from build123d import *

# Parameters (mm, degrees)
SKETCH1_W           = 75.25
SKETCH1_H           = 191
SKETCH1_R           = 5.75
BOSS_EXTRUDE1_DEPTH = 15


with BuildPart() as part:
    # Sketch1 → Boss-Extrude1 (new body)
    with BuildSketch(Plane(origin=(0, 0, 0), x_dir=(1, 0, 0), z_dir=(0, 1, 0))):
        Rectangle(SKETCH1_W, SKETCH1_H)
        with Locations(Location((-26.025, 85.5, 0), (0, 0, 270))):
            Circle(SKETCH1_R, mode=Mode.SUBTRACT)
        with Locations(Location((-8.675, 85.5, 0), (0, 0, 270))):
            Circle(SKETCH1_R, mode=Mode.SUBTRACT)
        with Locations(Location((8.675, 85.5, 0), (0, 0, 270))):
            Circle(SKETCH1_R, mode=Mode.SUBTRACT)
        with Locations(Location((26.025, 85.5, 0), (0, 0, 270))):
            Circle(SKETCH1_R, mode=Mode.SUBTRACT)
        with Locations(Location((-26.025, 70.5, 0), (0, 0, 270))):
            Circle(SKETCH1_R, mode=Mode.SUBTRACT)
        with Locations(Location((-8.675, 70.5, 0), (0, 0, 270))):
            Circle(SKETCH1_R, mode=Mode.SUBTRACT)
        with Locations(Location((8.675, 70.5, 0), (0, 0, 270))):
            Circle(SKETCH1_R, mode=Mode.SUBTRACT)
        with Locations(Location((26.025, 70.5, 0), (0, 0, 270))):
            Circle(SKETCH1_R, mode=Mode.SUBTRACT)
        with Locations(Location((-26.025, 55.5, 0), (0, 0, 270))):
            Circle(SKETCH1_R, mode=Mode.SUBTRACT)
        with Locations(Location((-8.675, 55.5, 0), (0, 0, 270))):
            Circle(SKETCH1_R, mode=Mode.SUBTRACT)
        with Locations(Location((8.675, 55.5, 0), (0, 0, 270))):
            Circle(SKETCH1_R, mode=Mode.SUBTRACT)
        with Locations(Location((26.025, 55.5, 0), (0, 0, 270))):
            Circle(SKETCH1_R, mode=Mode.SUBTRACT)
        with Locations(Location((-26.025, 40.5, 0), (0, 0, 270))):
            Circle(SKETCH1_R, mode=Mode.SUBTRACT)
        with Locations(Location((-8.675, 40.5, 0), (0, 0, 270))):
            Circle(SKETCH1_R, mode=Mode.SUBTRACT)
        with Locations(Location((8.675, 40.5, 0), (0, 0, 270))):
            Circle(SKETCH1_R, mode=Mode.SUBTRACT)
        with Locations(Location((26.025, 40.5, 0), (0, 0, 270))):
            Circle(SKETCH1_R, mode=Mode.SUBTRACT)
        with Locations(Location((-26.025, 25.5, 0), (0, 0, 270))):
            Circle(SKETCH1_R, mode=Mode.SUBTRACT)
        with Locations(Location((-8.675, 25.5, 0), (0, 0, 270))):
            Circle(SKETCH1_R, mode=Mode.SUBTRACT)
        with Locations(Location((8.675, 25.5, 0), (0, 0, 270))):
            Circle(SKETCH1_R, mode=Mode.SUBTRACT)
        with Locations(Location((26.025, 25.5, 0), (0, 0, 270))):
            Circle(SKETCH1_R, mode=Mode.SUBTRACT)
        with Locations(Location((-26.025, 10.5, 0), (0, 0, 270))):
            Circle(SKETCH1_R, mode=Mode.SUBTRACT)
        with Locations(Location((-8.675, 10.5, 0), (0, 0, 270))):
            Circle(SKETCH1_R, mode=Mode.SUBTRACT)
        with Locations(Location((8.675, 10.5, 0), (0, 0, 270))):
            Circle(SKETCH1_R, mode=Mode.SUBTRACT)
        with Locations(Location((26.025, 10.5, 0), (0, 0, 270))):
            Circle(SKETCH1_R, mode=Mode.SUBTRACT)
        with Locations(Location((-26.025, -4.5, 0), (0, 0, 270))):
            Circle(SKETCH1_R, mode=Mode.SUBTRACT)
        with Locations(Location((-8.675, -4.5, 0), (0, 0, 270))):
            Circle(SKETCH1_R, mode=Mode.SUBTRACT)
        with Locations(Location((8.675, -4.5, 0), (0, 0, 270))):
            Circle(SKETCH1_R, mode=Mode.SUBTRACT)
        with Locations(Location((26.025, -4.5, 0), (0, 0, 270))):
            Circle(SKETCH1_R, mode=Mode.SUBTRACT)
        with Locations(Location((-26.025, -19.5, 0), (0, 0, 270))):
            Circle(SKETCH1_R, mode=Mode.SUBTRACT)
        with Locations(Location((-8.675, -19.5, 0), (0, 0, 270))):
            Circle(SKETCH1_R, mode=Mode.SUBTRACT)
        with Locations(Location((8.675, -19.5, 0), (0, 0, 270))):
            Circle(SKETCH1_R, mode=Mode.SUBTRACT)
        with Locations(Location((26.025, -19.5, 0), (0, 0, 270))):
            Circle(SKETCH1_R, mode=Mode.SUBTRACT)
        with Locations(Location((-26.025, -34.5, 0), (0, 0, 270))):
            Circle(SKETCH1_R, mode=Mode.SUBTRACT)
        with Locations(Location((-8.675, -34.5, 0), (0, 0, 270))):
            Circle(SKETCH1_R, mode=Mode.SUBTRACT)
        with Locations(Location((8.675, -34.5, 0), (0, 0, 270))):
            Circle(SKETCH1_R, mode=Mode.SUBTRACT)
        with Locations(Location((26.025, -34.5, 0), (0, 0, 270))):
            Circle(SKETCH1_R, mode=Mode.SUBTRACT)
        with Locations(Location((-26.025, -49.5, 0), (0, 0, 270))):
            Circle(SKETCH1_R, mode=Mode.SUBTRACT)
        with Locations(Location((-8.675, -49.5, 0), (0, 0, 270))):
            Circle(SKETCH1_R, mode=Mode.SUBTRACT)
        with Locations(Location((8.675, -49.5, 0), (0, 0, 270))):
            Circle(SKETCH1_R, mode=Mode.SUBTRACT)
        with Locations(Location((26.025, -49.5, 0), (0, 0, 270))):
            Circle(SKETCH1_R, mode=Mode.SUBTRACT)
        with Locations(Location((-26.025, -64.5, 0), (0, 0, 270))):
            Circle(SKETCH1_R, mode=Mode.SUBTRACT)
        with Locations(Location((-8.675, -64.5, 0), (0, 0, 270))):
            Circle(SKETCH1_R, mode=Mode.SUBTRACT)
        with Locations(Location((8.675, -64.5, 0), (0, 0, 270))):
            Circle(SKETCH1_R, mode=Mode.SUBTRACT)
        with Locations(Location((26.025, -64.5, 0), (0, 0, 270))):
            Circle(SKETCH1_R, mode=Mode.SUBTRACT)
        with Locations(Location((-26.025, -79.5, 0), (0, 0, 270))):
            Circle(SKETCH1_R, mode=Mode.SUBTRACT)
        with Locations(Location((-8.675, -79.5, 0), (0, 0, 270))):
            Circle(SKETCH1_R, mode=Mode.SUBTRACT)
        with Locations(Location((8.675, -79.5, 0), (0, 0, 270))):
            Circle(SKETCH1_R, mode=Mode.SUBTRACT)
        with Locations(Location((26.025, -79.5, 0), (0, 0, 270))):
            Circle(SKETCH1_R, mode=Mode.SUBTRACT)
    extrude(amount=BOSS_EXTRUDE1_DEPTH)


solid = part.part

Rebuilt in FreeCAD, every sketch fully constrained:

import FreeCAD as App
import Part
import Sketcher

V = App.Vector


def add_polygon(sketch, points):
    """Adds a closed chain of lines whose ends are joined by coincident constraints."""
    first, n = sketch.GeometryCount, len(points)
    for a, b in zip(points, points[1:] + points[:1]):
        sketch.addGeometry(Part.LineSegment(App.Vector(*a, 0), App.Vector(*b, 0)), False)
    for i in range(n):
        sketch.addConstraint(Sketcher.Constraint("Coincident", first + i, 2, first + (i + 1) % n, 1))

doc = App.newDocument("Part")
body = doc.addObject("PartDesign::Body", "Body")

sketch1 = body.newObject("Sketcher::SketchObject", "Sketch")
sketch1.AttachmentSupport = (doc.getObject("XZ_Plane"), [""])
sketch1.MapMode = "FlatFace"
add_polygon(sketch1, [(-38, -96), (-38, 96), (38, 96), (38, -96)])
sketch1.addGeometry(Part.Circle(V(-26, 80, 0), V(0, 0, 1), 6), False)
sketch1.addGeometry(Part.Circle(V(-26, 64, 0), V(0, 0, 1), 6), False)
sketch1.addGeometry(Part.Circle(V(-26, 50, 0), V(0, 0, 1), 6), False)
sketch1.addGeometry(Part.Circle(V(-9, 80, 0), V(0, 0, 1), 6), False)
sketch1.addGeometry(Part.Circle(V(-9, 64, 0), V(0, 0, 1), 6), False)
sketch1.addGeometry(Part.Circle(V(-9, 50, 0), V(0, 0, 1), 6), False)
sketch1.addGeometry(Part.Circle(V(-26, 34, 0), V(0, 0, 1), 6), False)
sketch1.addGeometry(Part.Circle(V(-26, 20, 0), V(0, 0, 1), 6), False)
sketch1.addGeometry(Part.Circle(V(-26, 4, 0), V(0, 0, 1), 6), False)
sketch1.addGeometry(Part.Circle(V(-9, 34, 0), V(0, 0, 1), 6), False)
sketch1.addGeometry(Part.Circle(V(-9, 20, 0), V(0, 0, 1), 6), False)
sketch1.addGeometry(Part.Circle(V(-9, 4, 0), V(0, 0, 1), 6), False)
sketch1.addGeometry(Part.Circle(V(9, 80, 0), V(0, 0, 1), 6), False)
sketch1.addGeometry(Part.Circle(V(9, 64, 0), V(0, 0, 1), 6), False)
sketch1.addGeometry(Part.Circle(V(9, 50, 0), V(0, 0, 1), 6), False)
sketch1.addGeometry(Part.Circle(V(26, 80, 0), V(0, 0, 1), 6), False)
sketch1.addGeometry(Part.Circle(V(26, 64, 0), V(0, 0, 1), 6), False)
sketch1.addGeometry(Part.Circle(V(26, 50, 0), V(0, 0, 1), 6), False)
sketch1.addGeometry(Part.Circle(V(9, 34, 0), V(0, 0, 1), 6), False)
sketch1.addGeometry(Part.Circle(V(9, 20, 0), V(0, 0, 1), 6), False)
sketch1.addGeometry(Part.Circle(V(9, 4, 0), V(0, 0, 1), 6), False)
sketch1.addGeometry(Part.Circle(V(26, 34, 0), V(0, 0, 1), 6), False)
sketch1.addGeometry(Part.Circle(V(26, 20, 0), V(0, 0, 1), 6), False)
sketch1.addGeometry(Part.Circle(V(26, 4, 0), V(0, 0, 1), 6), False)
sketch1.addGeometry(Part.Circle(V(-26, -10, 0), V(0, 0, 1), 6), False)
sketch1.addGeometry(Part.Circle(V(-26, -26, 0), V(0, 0, 1), 6), False)
sketch1.addGeometry(Part.Circle(V(-26, -40, 0), V(0, 0, 1), 6), False)
sketch1.addGeometry(Part.Circle(V(-9, -10, 0), V(0, 0, 1), 6), False)
sketch1.addGeometry(Part.Circle(V(-9, -26, 0), V(0, 0, 1), 6), False)
sketch1.addGeometry(Part.Circle(V(-9, -40, 0), V(0, 0, 1), 6), False)
sketch1.addGeometry(Part.Circle(V(-26, -56, 0), V(0, 0, 1), 6), False)
sketch1.addGeometry(Part.Circle(V(-26, -70, 0), V(0, 0, 1), 6), False)
sketch1.addGeometry(Part.Circle(V(-26, -86, 0), V(0, 0, 1), 6), False)
sketch1.addGeometry(Part.Circle(V(-9, -56, 0), V(0, 0, 1), 6), False)
sketch1.addGeometry(Part.Circle(V(-9, -70, 0), V(0, 0, 1), 6), False)
sketch1.addGeometry(Part.Circle(V(-9, -86, 0), V(0, 0, 1), 6), False)
sketch1.addGeometry(Part.Circle(V(9, -10, 0), V(0, 0, 1), 6), False)
sketch1.addGeometry(Part.Circle(V(9, -26, 0), V(0, 0, 1), 6), False)
sketch1.addGeometry(Part.Circle(V(9, -40, 0), V(0, 0, 1), 6), False)
sketch1.addGeometry(Part.Circle(V(26, -10, 0), V(0, 0, 1), 6), False)
sketch1.addGeometry(Part.Circle(V(26, -26, 0), V(0, 0, 1), 6), False)
sketch1.addGeometry(Part.Circle(V(26, -40, 0), V(0, 0, 1), 6), False)
sketch1.addGeometry(Part.Circle(V(9, -56, 0), V(0, 0, 1), 6), False)
sketch1.addGeometry(Part.Circle(V(9, -70, 0), V(0, 0, 1), 6), False)
sketch1.addGeometry(Part.Circle(V(9, -86, 0), V(0, 0, 1), 6), False)
sketch1.addGeometry(Part.Circle(V(26, -56, 0), V(0, 0, 1), 6), False)
sketch1.addGeometry(Part.Circle(V(26, -70, 0), V(0, 0, 1), 6), False)
sketch1.addGeometry(Part.Circle(V(26, -86, 0), V(0, 0, 1), 6), False)
sketch1.addConstraint([
    Sketcher.Constraint("Vertical", 0),
    Sketcher.Constraint("Horizontal", 1),
    Sketcher.Constraint("Vertical", 2),
    Sketcher.Constraint("Horizontal", 3),
    Sketcher.Constraint("Equal", 4, 5),
    Sketcher.Constraint("Equal", 5, 6),
    Sketcher.Constraint("Equal", 6, 7),
    Sketcher.Constraint("Equal", 7, 8),
    Sketcher.Constraint("Equal", 8, 9),
    Sketcher.Constraint("Equal", 9, 10),
    Sketcher.Constraint("Equal", 10, 11),
    Sketcher.Constraint("Equal", 11, 12),
    Sketcher.Constraint("Equal", 12, 13),
    Sketcher.Constraint("Equal", 13, 14),
    Sketcher.Constraint("Equal", 14, 15),
    Sketcher.Constraint("Equal", 15, 16),
    Sketcher.Constraint("Equal", 16, 17),
    Sketcher.Constraint("Equal", 17, 18),
    Sketcher.Constraint("Equal", 18, 19),
    Sketcher.Constraint("Equal", 19, 20),
    Sketcher.Constraint("Equal", 20, 21),
    Sketcher.Constraint("Equal", 21, 22),
    Sketcher.Constraint("Equal", 22, 23),
    Sketcher.Constraint("Equal", 23, 24),
    Sketcher.Constraint("Equal", 24, 25),
    Sketcher.Constraint("Equal", 25, 26),
    Sketcher.Constraint("Equal", 26, 27),
    Sketcher.Constraint("Equal", 27, 28),
    Sketcher.Constraint("Equal", 28, 29),
    Sketcher.Constraint("Equal", 29, 30),
    Sketcher.Constraint("Equal", 30, 31),
    Sketcher.Constraint("Equal", 31, 32),
    Sketcher.Constraint("Equal", 32, 33),
    Sketcher.Constraint("Equal", 33, 34),
    Sketcher.Constraint("Equal", 34, 35),
    Sketcher.Constraint("Equal", 35, 36),
    Sketcher.Constraint("Equal", 36, 37),
    Sketcher.Constraint("Equal", 37, 38),
    Sketcher.Constraint("Equal", 38, 39),
    Sketcher.Constraint("Equal", 39, 40),
    Sketcher.Constraint("Equal", 40, 41),
    Sketcher.Constraint("Equal", 41, 42),
    Sketcher.Constraint("Equal", 42, 43),
    Sketcher.Constraint("Equal", 43, 44),
    Sketcher.Constraint("Equal", 44, 45),
    Sketcher.Constraint("Equal", 45, 46),
    Sketcher.Constraint("Equal", 46, 47),
    Sketcher.Constraint("Equal", 47, 48),
    Sketcher.Constraint("Equal", 48, 49),
    Sketcher.Constraint("Equal", 49, 50),
    Sketcher.Constraint("Equal", 50, 51),
    Sketcher.Constraint("Symmetric", 0, 2, 2, 2, -1, 1),
    Sketcher.Constraint("Symmetric", 7, 3, 16, 3, -2),
    Sketcher.Constraint("Symmetric", 8, 3, 17, 3, -2),
    Sketcher.Constraint("Symmetric", 9, 3, 18, 3, -2),
    Sketcher.Constraint("Symmetric", 4, 3, 19, 3, -2),
    Sketcher.Constraint("Symmetric", 5, 3, 20, 3, -2),
    Sketcher.Constraint("Symmetric", 6, 3, 21, 3, -2),
    Sketcher.Constraint("Symmetric", 13, 3, 22, 3, -2),
    Sketcher.Constraint("Symmetric", 14, 3, 23, 3, -2),
    Sketcher.Constraint("Symmetric", 15, 3, 24, 3, -2),
    Sketcher.Constraint("Symmetric", 10, 3, 25, 3, -2),
    Sketcher.Constraint("Symmetric", 11, 3, 26, 3, -2),
    Sketcher.Constraint("Symmetric", 12, 3, 27, 3, -2),
    Sketcher.Constraint("Symmetric", 31, 3, 40, 3, -2),
    Sketcher.Constraint("Symmetric", 32, 3, 41, 3, -2),
    Sketcher.Constraint("Symmetric", 33, 3, 42, 3, -2),
    Sketcher.Constraint("Symmetric", 28, 3, 43, 3, -2),
    Sketcher.Constraint("Symmetric", 29, 3, 44, 3, -2),
    Sketcher.Constraint("Symmetric", 30, 3, 45, 3, -2),
    Sketcher.Constraint("Symmetric", 37, 3, 46, 3, -2),
    Sketcher.Constraint("Symmetric", 38, 3, 47, 3, -2),
    Sketcher.Constraint("Symmetric", 39, 3, 48, 3, -2),
    Sketcher.Constraint("Symmetric", 34, 3, 49, 3, -2),
    Sketcher.Constraint("Symmetric", 35, 3, 50, 3, -2),
    Sketcher.Constraint("Symmetric", 36, 3, 51, 3, -2),
    Sketcher.Constraint("Horizontal", 4, 3, 7, 3),
    Sketcher.Constraint("Horizontal", 5, 3, 8, 3),
    Sketcher.Constraint("Horizontal", 6, 3, 9, 3),
    Sketcher.Constraint("Horizontal", 10, 3, 13, 3),
    Sketcher.Constraint("Horizontal", 11, 3, 14, 3),
    Sketcher.Constraint("Horizontal", 12, 3, 15, 3),
    Sketcher.Constraint("Horizontal", 28, 3, 31, 3),
    Sketcher.Constraint("Horizontal", 29, 3, 32, 3),
    Sketcher.Constraint("Horizontal", 30, 3, 33, 3),
    Sketcher.Constraint("Horizontal", 34, 3, 37, 3),
    Sketcher.Constraint("Horizontal", 35, 3, 38, 3),
    Sketcher.Constraint("Horizontal", 36, 3, 39, 3),
    Sketcher.Constraint("Vertical", 4, 3, 5, 3),
    Sketcher.Constraint("Vertical", 5, 3, 6, 3),
    Sketcher.Constraint("Vertical", 7, 3, 8, 3),
    Sketcher.Constraint("Vertical", 8, 3, 9, 3),
    Sketcher.Constraint("Vertical", 6, 3, 10, 3),
    Sketcher.Constraint("Vertical", 10, 3, 11, 3),
    Sketcher.Constraint("Vertical", 11, 3, 12, 3),
    Sketcher.Constraint("Vertical", 9, 3, 13, 3),
    Sketcher.Constraint("Vertical", 13, 3, 14, 3),
    Sketcher.Constraint("Vertical", 14, 3, 15, 3),
    Sketcher.Constraint("Vertical", 12, 3, 28, 3),
    Sketcher.Constraint("Vertical", 28, 3, 29, 3),
    Sketcher.Constraint("Vertical", 29, 3, 30, 3),
    Sketcher.Constraint("Vertical", 15, 3, 31, 3),
    Sketcher.Constraint("Vertical", 31, 3, 32, 3),
    Sketcher.Constraint("Vertical", 32, 3, 33, 3),
    Sketcher.Constraint("Vertical", 30, 3, 34, 3),
    Sketcher.Constraint("Vertical", 34, 3, 35, 3),
    Sketcher.Constraint("Vertical", 35, 3, 36, 3),
    Sketcher.Constraint("Vertical", 33, 3, 37, 3),
    Sketcher.Constraint("Vertical", 37, 3, 38, 3),
    Sketcher.Constraint("Vertical", 38, 3, 39, 3),
    Sketcher.Constraint("Diameter", 4, 11.5),
    Sketcher.Constraint("DistanceY", 0, 1, 0, 2, 191.0),
    Sketcher.Constraint("DistanceY", 5, 3, 4, 3, 15.0),
    Sketcher.Constraint("DistanceY", 6, 3, 5, 3, 15.0),
    Sketcher.Constraint("DistanceY", 10, 3, 6, 3, 15.0),
    Sketcher.Constraint("DistanceY", 11, 3, 10, 3, 15.0),
    Sketcher.Constraint("DistanceY", 12, 3, 11, 3, 15.0),
    Sketcher.Constraint("DistanceY", 28, 3, 12, 3, 15.0),
    Sketcher.Constraint("DistanceY", 29, 3, 28, 3, 15.0),
    Sketcher.Constraint("DistanceY", 30, 3, 29, 3, 15.0),
    Sketcher.Constraint("DistanceY", 34, 3, 30, 3, 15.0),
    Sketcher.Constraint("DistanceY", 35, 3, 34, 3, 15.0),
    Sketcher.Constraint("DistanceY", 36, 3, 35, 3, 15.0),
    Sketcher.Constraint("DistanceY", 4, 3, 0, 2, 16.0),
    Sketcher.Constraint("DistanceX", 1, 1, 1, 2, 75.25),
    Sketcher.Constraint("DistanceX", 4, 3, 16, 3, 34.7),
    Sketcher.Constraint("DistanceX", 0, 2, 4, 3, 11.6),
])
pad1 = body.newObject("PartDesign::Pad", "Pad")
pad1.Profile = sketch1
pad1.Length = 15
pad1.Reversed = True

doc.recompute()
